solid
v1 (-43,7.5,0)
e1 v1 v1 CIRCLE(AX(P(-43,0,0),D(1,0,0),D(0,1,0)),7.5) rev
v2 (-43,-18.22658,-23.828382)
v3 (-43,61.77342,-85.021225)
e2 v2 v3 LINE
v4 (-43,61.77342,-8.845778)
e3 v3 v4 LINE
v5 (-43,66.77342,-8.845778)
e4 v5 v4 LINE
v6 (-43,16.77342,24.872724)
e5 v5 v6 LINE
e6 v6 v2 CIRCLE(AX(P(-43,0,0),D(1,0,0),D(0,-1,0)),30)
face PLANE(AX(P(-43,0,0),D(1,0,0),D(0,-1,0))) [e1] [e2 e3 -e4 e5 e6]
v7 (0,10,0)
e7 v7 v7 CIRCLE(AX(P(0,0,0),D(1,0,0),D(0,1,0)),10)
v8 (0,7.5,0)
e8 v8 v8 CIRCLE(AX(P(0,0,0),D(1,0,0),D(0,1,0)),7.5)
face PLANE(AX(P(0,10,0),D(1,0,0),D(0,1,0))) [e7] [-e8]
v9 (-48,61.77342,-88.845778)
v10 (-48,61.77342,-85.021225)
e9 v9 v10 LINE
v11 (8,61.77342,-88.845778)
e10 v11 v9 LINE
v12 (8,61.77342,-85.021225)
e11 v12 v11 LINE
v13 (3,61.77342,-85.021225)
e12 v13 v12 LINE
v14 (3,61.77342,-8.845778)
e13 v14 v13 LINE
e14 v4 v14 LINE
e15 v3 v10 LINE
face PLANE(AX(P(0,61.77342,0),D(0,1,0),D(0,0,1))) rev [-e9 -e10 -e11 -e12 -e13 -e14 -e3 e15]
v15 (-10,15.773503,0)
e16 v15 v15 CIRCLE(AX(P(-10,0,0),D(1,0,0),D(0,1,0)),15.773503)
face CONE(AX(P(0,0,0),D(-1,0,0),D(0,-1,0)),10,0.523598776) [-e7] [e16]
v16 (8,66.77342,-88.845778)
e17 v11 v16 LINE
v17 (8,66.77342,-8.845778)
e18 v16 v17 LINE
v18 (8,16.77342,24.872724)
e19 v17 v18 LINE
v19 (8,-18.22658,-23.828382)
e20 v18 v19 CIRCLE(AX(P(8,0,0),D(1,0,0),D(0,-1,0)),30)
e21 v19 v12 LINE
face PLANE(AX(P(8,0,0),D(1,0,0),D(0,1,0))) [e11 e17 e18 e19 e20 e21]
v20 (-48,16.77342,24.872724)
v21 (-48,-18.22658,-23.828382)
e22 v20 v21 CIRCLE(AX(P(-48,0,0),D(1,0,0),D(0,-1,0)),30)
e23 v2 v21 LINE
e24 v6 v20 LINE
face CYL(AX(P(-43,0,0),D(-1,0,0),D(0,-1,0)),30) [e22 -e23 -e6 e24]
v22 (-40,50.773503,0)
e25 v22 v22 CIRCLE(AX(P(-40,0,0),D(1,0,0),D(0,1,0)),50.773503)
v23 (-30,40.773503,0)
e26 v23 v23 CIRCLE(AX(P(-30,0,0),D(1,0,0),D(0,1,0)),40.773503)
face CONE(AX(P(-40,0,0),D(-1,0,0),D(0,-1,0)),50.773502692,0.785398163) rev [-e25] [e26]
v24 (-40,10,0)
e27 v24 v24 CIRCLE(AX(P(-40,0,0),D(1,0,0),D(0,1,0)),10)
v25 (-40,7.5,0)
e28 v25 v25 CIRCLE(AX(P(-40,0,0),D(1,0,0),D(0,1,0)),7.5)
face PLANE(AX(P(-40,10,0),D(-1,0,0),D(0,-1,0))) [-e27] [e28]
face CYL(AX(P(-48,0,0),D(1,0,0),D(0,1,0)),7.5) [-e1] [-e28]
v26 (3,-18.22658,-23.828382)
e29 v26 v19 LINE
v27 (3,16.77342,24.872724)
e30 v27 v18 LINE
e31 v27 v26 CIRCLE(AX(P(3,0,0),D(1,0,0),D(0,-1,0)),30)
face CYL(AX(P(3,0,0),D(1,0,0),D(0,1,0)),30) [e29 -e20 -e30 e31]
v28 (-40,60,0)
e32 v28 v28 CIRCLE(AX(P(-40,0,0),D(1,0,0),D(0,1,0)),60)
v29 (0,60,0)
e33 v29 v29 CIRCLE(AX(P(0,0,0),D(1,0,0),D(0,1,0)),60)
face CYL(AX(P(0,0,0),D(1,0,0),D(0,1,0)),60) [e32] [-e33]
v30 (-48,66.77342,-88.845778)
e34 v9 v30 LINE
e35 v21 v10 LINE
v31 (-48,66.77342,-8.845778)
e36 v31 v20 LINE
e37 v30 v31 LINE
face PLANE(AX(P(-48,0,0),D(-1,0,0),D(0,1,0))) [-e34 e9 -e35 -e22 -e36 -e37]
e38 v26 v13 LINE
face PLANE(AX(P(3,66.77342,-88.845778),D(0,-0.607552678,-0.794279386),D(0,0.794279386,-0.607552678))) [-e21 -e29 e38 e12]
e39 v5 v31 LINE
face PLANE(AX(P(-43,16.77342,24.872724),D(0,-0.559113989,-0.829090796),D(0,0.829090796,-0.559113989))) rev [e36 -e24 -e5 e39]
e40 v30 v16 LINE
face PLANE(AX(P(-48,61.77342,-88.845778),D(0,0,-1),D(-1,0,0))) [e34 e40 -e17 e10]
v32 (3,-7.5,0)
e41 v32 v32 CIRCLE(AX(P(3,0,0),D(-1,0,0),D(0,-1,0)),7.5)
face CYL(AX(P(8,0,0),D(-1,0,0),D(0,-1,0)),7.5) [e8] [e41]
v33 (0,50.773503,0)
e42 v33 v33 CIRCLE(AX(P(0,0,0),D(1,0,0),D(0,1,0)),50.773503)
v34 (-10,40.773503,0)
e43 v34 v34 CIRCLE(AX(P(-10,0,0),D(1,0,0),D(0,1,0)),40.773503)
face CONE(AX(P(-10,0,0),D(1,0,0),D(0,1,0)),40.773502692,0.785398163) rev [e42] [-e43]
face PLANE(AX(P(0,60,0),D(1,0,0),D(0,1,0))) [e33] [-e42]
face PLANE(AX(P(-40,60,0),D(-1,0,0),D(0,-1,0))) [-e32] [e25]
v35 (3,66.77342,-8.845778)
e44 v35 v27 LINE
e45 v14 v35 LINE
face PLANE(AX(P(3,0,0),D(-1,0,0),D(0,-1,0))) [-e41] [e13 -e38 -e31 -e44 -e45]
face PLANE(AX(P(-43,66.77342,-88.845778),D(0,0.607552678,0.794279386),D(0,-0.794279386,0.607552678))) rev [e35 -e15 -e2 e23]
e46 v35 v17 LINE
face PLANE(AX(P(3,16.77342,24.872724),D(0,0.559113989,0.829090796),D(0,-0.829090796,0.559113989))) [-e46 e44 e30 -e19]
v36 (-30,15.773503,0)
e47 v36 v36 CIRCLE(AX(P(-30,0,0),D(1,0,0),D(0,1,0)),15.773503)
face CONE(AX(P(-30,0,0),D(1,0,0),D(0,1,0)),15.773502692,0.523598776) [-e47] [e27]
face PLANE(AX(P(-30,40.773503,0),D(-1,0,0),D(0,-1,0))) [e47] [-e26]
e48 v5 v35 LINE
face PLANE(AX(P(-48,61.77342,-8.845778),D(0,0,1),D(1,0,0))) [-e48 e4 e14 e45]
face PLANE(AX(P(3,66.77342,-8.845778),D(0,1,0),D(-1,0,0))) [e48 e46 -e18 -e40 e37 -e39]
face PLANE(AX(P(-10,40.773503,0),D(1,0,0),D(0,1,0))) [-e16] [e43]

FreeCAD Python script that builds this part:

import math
import FreeCAD as App
import Part
import Sketcher

V = App.Vector
Q = App.Units.Quantity

doc = App.newDocument("Part")
params = doc.addObject("Spreadsheet::Sheet", "Params")
for row, (alias, value) in enumerate([
    ("sketch1_width", "40 mm"),
    ("sketch1_height", "25 mm"),
    ("sketch1_height2", "10 mm"),
    ("revolution_angle", "360 deg"),
    ("sketch2_diameter", "15 mm"),
    ("pad1_length", "8 mm"),
    ("sketch3_radius", "30 mm"),
    ("sketch3_height", "80 mm"),
    ("pad2_length", "5 mm"),
    ("sketch4_width", "56 mm"),
    ("sketch4_height", "80 mm"),
    ("pad3_length", "5 mm"),
], start=1):
    params.set(f"A{row}", alias)
    params.set(f"B{row}", "=" + value)
    params.setAlias(f"B{row}", alias)

body = doc.addObject("PartDesign::Body", "Body")

# Sketch on XY plane
sketch1 = body.newObject("Sketcher::SketchObject", "Sketch")
sketch1.AttachmentSupport = (doc.getObject("XY_Plane"), [""])
sketch1.MapMode = "FlatFace"
sketch1.addGeometry(Part.LineSegment(V(0, 60, 0), V(-40, 60, 0)), False)
sketch1.addGeometry(Part.LineSegment(V(-40, 60, 0), V(-40, 51, 0)), False)
sketch1.addGeometry(Part.LineSegment(V(-40, 51, 0), V(-30, 41, 0)), False)
sketch1.addGeometry(Part.LineSegment(V(-30, 41, 0), V(-30, 16, 0)), False)
sketch1.addGeometry(Part.LineSegment(V(-30, 16, 0), V(-40, 10, 0)), False)
sketch1.addGeometry(Part.LineSegment(V(-40, 10, 0), V(-40, 0, 0)), False)
sketch1.addGeometry(Part.LineSegment(V(-40, 0, 0), V(0, 0, 0)), False)
sketch1.addGeometry(Part.LineSegment(V(0, 0, 0), V(0, 10, 0)), False)
sketch1.addGeometry(Part.LineSegment(V(0, 10, 0), V(-10, 16, 0)), False)
sketch1.addGeometry(Part.LineSegment(V(-10, 16, 0), V(-10, 41, 0)), False)
sketch1.addGeometry(Part.LineSegment(V(-10, 41, 0), V(0, 51, 0)), False)
sketch1.addGeometry(Part.LineSegment(V(0, 51, 0), V(0, 60, 0)), False)
sketch1.addConstraint(Sketcher.Constraint("Coincident", 0, 2, 1, 1))
sketch1.addConstraint(Sketcher.Constraint("Coincident", 1, 2, 2, 1))
sketch1.addConstraint(Sketcher.Constraint("Coincident", 2, 2, 3, 1))
sketch1.addConstraint(Sketcher.Constraint("Coincident", 3, 2, 4, 1))
sketch1.addConstraint(Sketcher.Constraint("Coincident", 4, 2, 5, 1))
sketch1.addConstraint(Sketcher.Constraint("Coincident", 5, 2, 6, 1))
sketch1.addConstraint(Sketcher.Constraint("Coincident", 6, 2, 7, 1))
sketch1.addConstraint(Sketcher.Constraint("Coincident", 7, 2, 8, 1))
sketch1.addConstraint(Sketcher.Constraint("Coincident", 8, 2, 9, 1))
sketch1.addConstraint(Sketcher.Constraint("Coincident", 9, 2, 10, 1))
sketch1.addConstraint(Sketcher.Constraint("Coincident", 10, 2, 11, 1))
sketch1.addConstraint(Sketcher.Constraint("Coincident", 11, 2, 0, 1))
sketch1.addConstraint(Sketcher.Constraint("Horizontal", 0))
sketch1.addConstraint(Sketcher.Constraint("Vertical", 1))
sketch1.addConstraint(Sketcher.Constraint("Vertical", 3))
sketch1.addConstraint(Sketcher.Constraint("Vertical", 5))
sketch1.addConstraint(Sketcher.Constraint("Horizontal", 6))
sketch1.addConstraint(Sketcher.Constraint("Vertical", 7))
sketch1.addConstraint(Sketcher.Constraint("Vertical", 9))
sketch1.addConstraint(Sketcher.Constraint("Vertical", 11))
sketch1.addConstraint(Sketcher.Constraint("Coincident", 6, 2, -1, 1))
sketch1.addConstraint(Sketcher.Constraint("PointOnObject", 10, 2, -2))
sketch1.addConstraint(Sketcher.Constraint("Perpendicular", 2, 10))
sketch1.addConstraint(Sketcher.Constraint("Horizontal", 4, 2, 7, 2))
sketch1.addConstraint(Sketcher.Constraint("Horizontal", 3, 2, 8, 2))
sketch1.addConstraint(Sketcher.Constraint("Horizontal", 2, 2, 9, 2))
sketch1.addConstraint(Sketcher.Constraint("Horizontal", 1, 2, 10, 2))
sketch1.addConstraint(Sketcher.Constraint("Vertical", 1, 2, 4, 2))
sketch1.addConstraint(Sketcher.Constraint("Equal", 4, 8))
sketch1.addConstraint(Sketcher.Constraint("DistanceX", 0, 2, 0, 1, 40.0))
sketch1.addConstraint(Sketcher.Constraint("DistanceY", 3, 2, 3, 1, 25.0))
sketch1.addConstraint(Sketcher.Constraint("DistanceY", 5, 2, 5, 1, 10.0))
sketch1.addConstraint(Sketcher.Constraint("Angle", 4, Q("-150 deg")))
sketch1.addConstraint(Sketcher.Constraint("DistanceY", -1, 1, 0, 2, 60.0))
sketch1.addConstraint(Sketcher.Constraint("DistanceX", 2, 2, -1, 1, 30.0))
sketch1.setExpression("Constraints[29]", "Params.sketch1_width")
sketch1.setExpression("Constraints[30]", "Params.sketch1_height")
sketch1.setExpression("Constraints[31]", "Params.sketch1_height2")
revolution = body.newObject("PartDesign::Revolution", "Revolution")
revolution.Profile = sketch1
revolution.ReferenceAxis = (sketch1, ["H_Axis"])
revolution.setExpression("Angle", "Params.revolution_angle")

# Sketch on YZ plane
sketch2 = body.newObject("Sketcher::SketchObject", "Sketch001")
sketch2.AttachmentSupport = (doc.getObject("YZ_Plane"), [""])
sketch2.MapMode = "FlatFace"
sketch2.addGeometry(Part.Circle(V(0, 0, 0), V(0, 0, 1), 8), False)
sketch2.addConstraint(Sketcher.Constraint("Coincident", 0, 3, -1, 1))
sketch2.addConstraint(Sketcher.Constraint("Diameter", 0, 15.0))
sketch2.setExpression("Constraints[1]", "Params.sketch2_diameter")
pad1 = body.newObject("PartDesign::Pad", "Pad")
pad1.Profile = sketch2
pad1.setExpression("Length", "Params.pad1_length")

# Sketch on YZ plane
sketch3 = body.newObject("Sketcher::SketchObject", "Sketch002")
sketch3.AttachmentSupport = (doc.getObject("YZ_Plane"), [""])
sketch3.MapMode = "FlatFace"
sketch3.AttachmentOffset = App.Placement(V(0, 0, 8), App.Rotation())
sketch3.addGeometry(Part.LineSegment(V(67, -89, 0), V(67, -9, 0)), False)
sketch3.addGeometry(Part.LineSegment(V(67, -9, 0), V(17, 25, 0)), False)
sketch3.addGeometry(Part.ArcOfCircle(Part.Circle(V(0, 0, 0), V(0, 0, 1), 30), math.radians(56), math.radians(233)), False)
sketch3.addGeometry(Part.LineSegment(V(-18, -24, 0), V(67, -89, 0)), False)
sketch3.addConstraint(Sketcher.Constraint("Coincident", 0, 2, 1, 1))
sketch3.addConstraint(Sketcher.Constraint("Tangent", 1, 2, 2, 1))
sketch3.addConstraint(Sketcher.Constraint("Tangent", 2, 2, 3, 1))
sketch3.addConstraint(Sketcher.Constraint("Coincident", 3, 2, 0, 1))
sketch3.addConstraint(Sketcher.Constraint("Vertical", 0))
sketch3.addConstraint(Sketcher.Constraint("Coincident", 2, 3, -1, 1))
sketch3.addConstraint(Sketcher.Constraint("Radius", 2, 30.0))
sketch3.addConstraint(Sketcher.Constraint("DistanceY", 0, 1, 0, 2, 80.0))
sketch3.addConstraint(Sketcher.Constraint("DistanceX", 1, 2, 0, 2, 50.0))
sketch3.addConstraint(Sketcher.Constraint("DistanceX", 2, 2, 1, 2, 35.0))
sketch3.setExpression("Constraints[6]", "Params.sketch3_radius")
sketch3.setExpression("Constraints[7]", "Params.sketch3_height")
pad2 = body.newObject("PartDesign::Pad", "Pad001")
pad2.Profile = sketch3
pad2.setExpression("Length", "Params.pad2_length")
pad2.Reversed = True
doc.recompute()

datumplane = body.newObject("PartDesign::Plane", "DatumPlane")
datumplane.AttachmentSupport = (doc.getObject("YZ_Plane"), [""])
datumplane.MapMode = "FlatFace"
datumplane.AttachmentOffset = App.Placement(V(0, 0, -20), App.Rotation())
mirrored = body.newObject("PartDesign::Mirrored", "Mirrored")
mirrored.Originals = [pad1, pad2]
mirrored.MirrorPlane = (datumplane, [""])
body.Tip = mirrored

# Sketch on XZ plane
sketch4 = body.newObject("Sketcher::SketchObject", "Sketch003")
sketch4.AttachmentSupport = (doc.getObject("XZ_Plane"), [""])
sketch4.MapMode = "FlatFace"
sketch4.AttachmentOffset = App.Placement(V(0, 0, -66.77342), App.Rotation())
sketch4.addGeometry(Part.LineSegment(V(-48, -89, 0), V(-48, -9, 0)), False)
sketch4.addGeometry(Part.LineSegment(V(-48, -9, 0), V(8, -9, 0)), False)
sketch4.addGeometry(Part.LineSegment(V(8, -9, 0), V(8, -89, 0)), False)
sketch4.addGeometry(Part.LineSegment(V(8, -89, 0), V(-48, -89, 0)), False)
sketch4.addConstraint(Sketcher.Constraint("Coincident", 0, 2, 1, 1))
sketch4.addConstraint(Sketcher.Constraint("Coincident", 1, 2, 2, 1))
sketch4.addConstraint(Sketcher.Constraint("Coincident", 2, 2, 3, 1))
sketch4.addConstraint(Sketcher.Constraint("Coincident", 3, 2, 0, 1))
sketch4.addConstraint(Sketcher.Constraint("Vertical", 0))
sketch4.addConstraint(Sketcher.Constraint("Horizontal", 1))
sketch4.addConstraint(Sketcher.Constraint("Vertical", 2))
sketch4.addConstraint(Sketcher.Constraint("Horizontal", 3))
sketch4.addConstraint(Sketcher.Constraint("DistanceX", 1, 1, 1, 2, 56.0))
sketch4.addConstraint(Sketcher.Constraint("DistanceY", 0, 1, 0, 2, 80.0))
sketch4.addConstraint(Sketcher.Constraint("DistanceX", 0, 2, -1, 1, 48.0))
sketch4.addConstraint(Sketcher.Constraint("DistanceY", 0, 2, -1, 1, 8.845778))
sketch4.setExpression("Constraints[8]", "Params.sketch4_width")
sketch4.setExpression("Constraints[9]", "Params.sketch4_height")
pad3 = body.newObject("PartDesign::Pad", "Pad002")
pad3.Profile = sketch4
pad3.setExpression("Length", "Params.pad3_length")

doc.recompute()
